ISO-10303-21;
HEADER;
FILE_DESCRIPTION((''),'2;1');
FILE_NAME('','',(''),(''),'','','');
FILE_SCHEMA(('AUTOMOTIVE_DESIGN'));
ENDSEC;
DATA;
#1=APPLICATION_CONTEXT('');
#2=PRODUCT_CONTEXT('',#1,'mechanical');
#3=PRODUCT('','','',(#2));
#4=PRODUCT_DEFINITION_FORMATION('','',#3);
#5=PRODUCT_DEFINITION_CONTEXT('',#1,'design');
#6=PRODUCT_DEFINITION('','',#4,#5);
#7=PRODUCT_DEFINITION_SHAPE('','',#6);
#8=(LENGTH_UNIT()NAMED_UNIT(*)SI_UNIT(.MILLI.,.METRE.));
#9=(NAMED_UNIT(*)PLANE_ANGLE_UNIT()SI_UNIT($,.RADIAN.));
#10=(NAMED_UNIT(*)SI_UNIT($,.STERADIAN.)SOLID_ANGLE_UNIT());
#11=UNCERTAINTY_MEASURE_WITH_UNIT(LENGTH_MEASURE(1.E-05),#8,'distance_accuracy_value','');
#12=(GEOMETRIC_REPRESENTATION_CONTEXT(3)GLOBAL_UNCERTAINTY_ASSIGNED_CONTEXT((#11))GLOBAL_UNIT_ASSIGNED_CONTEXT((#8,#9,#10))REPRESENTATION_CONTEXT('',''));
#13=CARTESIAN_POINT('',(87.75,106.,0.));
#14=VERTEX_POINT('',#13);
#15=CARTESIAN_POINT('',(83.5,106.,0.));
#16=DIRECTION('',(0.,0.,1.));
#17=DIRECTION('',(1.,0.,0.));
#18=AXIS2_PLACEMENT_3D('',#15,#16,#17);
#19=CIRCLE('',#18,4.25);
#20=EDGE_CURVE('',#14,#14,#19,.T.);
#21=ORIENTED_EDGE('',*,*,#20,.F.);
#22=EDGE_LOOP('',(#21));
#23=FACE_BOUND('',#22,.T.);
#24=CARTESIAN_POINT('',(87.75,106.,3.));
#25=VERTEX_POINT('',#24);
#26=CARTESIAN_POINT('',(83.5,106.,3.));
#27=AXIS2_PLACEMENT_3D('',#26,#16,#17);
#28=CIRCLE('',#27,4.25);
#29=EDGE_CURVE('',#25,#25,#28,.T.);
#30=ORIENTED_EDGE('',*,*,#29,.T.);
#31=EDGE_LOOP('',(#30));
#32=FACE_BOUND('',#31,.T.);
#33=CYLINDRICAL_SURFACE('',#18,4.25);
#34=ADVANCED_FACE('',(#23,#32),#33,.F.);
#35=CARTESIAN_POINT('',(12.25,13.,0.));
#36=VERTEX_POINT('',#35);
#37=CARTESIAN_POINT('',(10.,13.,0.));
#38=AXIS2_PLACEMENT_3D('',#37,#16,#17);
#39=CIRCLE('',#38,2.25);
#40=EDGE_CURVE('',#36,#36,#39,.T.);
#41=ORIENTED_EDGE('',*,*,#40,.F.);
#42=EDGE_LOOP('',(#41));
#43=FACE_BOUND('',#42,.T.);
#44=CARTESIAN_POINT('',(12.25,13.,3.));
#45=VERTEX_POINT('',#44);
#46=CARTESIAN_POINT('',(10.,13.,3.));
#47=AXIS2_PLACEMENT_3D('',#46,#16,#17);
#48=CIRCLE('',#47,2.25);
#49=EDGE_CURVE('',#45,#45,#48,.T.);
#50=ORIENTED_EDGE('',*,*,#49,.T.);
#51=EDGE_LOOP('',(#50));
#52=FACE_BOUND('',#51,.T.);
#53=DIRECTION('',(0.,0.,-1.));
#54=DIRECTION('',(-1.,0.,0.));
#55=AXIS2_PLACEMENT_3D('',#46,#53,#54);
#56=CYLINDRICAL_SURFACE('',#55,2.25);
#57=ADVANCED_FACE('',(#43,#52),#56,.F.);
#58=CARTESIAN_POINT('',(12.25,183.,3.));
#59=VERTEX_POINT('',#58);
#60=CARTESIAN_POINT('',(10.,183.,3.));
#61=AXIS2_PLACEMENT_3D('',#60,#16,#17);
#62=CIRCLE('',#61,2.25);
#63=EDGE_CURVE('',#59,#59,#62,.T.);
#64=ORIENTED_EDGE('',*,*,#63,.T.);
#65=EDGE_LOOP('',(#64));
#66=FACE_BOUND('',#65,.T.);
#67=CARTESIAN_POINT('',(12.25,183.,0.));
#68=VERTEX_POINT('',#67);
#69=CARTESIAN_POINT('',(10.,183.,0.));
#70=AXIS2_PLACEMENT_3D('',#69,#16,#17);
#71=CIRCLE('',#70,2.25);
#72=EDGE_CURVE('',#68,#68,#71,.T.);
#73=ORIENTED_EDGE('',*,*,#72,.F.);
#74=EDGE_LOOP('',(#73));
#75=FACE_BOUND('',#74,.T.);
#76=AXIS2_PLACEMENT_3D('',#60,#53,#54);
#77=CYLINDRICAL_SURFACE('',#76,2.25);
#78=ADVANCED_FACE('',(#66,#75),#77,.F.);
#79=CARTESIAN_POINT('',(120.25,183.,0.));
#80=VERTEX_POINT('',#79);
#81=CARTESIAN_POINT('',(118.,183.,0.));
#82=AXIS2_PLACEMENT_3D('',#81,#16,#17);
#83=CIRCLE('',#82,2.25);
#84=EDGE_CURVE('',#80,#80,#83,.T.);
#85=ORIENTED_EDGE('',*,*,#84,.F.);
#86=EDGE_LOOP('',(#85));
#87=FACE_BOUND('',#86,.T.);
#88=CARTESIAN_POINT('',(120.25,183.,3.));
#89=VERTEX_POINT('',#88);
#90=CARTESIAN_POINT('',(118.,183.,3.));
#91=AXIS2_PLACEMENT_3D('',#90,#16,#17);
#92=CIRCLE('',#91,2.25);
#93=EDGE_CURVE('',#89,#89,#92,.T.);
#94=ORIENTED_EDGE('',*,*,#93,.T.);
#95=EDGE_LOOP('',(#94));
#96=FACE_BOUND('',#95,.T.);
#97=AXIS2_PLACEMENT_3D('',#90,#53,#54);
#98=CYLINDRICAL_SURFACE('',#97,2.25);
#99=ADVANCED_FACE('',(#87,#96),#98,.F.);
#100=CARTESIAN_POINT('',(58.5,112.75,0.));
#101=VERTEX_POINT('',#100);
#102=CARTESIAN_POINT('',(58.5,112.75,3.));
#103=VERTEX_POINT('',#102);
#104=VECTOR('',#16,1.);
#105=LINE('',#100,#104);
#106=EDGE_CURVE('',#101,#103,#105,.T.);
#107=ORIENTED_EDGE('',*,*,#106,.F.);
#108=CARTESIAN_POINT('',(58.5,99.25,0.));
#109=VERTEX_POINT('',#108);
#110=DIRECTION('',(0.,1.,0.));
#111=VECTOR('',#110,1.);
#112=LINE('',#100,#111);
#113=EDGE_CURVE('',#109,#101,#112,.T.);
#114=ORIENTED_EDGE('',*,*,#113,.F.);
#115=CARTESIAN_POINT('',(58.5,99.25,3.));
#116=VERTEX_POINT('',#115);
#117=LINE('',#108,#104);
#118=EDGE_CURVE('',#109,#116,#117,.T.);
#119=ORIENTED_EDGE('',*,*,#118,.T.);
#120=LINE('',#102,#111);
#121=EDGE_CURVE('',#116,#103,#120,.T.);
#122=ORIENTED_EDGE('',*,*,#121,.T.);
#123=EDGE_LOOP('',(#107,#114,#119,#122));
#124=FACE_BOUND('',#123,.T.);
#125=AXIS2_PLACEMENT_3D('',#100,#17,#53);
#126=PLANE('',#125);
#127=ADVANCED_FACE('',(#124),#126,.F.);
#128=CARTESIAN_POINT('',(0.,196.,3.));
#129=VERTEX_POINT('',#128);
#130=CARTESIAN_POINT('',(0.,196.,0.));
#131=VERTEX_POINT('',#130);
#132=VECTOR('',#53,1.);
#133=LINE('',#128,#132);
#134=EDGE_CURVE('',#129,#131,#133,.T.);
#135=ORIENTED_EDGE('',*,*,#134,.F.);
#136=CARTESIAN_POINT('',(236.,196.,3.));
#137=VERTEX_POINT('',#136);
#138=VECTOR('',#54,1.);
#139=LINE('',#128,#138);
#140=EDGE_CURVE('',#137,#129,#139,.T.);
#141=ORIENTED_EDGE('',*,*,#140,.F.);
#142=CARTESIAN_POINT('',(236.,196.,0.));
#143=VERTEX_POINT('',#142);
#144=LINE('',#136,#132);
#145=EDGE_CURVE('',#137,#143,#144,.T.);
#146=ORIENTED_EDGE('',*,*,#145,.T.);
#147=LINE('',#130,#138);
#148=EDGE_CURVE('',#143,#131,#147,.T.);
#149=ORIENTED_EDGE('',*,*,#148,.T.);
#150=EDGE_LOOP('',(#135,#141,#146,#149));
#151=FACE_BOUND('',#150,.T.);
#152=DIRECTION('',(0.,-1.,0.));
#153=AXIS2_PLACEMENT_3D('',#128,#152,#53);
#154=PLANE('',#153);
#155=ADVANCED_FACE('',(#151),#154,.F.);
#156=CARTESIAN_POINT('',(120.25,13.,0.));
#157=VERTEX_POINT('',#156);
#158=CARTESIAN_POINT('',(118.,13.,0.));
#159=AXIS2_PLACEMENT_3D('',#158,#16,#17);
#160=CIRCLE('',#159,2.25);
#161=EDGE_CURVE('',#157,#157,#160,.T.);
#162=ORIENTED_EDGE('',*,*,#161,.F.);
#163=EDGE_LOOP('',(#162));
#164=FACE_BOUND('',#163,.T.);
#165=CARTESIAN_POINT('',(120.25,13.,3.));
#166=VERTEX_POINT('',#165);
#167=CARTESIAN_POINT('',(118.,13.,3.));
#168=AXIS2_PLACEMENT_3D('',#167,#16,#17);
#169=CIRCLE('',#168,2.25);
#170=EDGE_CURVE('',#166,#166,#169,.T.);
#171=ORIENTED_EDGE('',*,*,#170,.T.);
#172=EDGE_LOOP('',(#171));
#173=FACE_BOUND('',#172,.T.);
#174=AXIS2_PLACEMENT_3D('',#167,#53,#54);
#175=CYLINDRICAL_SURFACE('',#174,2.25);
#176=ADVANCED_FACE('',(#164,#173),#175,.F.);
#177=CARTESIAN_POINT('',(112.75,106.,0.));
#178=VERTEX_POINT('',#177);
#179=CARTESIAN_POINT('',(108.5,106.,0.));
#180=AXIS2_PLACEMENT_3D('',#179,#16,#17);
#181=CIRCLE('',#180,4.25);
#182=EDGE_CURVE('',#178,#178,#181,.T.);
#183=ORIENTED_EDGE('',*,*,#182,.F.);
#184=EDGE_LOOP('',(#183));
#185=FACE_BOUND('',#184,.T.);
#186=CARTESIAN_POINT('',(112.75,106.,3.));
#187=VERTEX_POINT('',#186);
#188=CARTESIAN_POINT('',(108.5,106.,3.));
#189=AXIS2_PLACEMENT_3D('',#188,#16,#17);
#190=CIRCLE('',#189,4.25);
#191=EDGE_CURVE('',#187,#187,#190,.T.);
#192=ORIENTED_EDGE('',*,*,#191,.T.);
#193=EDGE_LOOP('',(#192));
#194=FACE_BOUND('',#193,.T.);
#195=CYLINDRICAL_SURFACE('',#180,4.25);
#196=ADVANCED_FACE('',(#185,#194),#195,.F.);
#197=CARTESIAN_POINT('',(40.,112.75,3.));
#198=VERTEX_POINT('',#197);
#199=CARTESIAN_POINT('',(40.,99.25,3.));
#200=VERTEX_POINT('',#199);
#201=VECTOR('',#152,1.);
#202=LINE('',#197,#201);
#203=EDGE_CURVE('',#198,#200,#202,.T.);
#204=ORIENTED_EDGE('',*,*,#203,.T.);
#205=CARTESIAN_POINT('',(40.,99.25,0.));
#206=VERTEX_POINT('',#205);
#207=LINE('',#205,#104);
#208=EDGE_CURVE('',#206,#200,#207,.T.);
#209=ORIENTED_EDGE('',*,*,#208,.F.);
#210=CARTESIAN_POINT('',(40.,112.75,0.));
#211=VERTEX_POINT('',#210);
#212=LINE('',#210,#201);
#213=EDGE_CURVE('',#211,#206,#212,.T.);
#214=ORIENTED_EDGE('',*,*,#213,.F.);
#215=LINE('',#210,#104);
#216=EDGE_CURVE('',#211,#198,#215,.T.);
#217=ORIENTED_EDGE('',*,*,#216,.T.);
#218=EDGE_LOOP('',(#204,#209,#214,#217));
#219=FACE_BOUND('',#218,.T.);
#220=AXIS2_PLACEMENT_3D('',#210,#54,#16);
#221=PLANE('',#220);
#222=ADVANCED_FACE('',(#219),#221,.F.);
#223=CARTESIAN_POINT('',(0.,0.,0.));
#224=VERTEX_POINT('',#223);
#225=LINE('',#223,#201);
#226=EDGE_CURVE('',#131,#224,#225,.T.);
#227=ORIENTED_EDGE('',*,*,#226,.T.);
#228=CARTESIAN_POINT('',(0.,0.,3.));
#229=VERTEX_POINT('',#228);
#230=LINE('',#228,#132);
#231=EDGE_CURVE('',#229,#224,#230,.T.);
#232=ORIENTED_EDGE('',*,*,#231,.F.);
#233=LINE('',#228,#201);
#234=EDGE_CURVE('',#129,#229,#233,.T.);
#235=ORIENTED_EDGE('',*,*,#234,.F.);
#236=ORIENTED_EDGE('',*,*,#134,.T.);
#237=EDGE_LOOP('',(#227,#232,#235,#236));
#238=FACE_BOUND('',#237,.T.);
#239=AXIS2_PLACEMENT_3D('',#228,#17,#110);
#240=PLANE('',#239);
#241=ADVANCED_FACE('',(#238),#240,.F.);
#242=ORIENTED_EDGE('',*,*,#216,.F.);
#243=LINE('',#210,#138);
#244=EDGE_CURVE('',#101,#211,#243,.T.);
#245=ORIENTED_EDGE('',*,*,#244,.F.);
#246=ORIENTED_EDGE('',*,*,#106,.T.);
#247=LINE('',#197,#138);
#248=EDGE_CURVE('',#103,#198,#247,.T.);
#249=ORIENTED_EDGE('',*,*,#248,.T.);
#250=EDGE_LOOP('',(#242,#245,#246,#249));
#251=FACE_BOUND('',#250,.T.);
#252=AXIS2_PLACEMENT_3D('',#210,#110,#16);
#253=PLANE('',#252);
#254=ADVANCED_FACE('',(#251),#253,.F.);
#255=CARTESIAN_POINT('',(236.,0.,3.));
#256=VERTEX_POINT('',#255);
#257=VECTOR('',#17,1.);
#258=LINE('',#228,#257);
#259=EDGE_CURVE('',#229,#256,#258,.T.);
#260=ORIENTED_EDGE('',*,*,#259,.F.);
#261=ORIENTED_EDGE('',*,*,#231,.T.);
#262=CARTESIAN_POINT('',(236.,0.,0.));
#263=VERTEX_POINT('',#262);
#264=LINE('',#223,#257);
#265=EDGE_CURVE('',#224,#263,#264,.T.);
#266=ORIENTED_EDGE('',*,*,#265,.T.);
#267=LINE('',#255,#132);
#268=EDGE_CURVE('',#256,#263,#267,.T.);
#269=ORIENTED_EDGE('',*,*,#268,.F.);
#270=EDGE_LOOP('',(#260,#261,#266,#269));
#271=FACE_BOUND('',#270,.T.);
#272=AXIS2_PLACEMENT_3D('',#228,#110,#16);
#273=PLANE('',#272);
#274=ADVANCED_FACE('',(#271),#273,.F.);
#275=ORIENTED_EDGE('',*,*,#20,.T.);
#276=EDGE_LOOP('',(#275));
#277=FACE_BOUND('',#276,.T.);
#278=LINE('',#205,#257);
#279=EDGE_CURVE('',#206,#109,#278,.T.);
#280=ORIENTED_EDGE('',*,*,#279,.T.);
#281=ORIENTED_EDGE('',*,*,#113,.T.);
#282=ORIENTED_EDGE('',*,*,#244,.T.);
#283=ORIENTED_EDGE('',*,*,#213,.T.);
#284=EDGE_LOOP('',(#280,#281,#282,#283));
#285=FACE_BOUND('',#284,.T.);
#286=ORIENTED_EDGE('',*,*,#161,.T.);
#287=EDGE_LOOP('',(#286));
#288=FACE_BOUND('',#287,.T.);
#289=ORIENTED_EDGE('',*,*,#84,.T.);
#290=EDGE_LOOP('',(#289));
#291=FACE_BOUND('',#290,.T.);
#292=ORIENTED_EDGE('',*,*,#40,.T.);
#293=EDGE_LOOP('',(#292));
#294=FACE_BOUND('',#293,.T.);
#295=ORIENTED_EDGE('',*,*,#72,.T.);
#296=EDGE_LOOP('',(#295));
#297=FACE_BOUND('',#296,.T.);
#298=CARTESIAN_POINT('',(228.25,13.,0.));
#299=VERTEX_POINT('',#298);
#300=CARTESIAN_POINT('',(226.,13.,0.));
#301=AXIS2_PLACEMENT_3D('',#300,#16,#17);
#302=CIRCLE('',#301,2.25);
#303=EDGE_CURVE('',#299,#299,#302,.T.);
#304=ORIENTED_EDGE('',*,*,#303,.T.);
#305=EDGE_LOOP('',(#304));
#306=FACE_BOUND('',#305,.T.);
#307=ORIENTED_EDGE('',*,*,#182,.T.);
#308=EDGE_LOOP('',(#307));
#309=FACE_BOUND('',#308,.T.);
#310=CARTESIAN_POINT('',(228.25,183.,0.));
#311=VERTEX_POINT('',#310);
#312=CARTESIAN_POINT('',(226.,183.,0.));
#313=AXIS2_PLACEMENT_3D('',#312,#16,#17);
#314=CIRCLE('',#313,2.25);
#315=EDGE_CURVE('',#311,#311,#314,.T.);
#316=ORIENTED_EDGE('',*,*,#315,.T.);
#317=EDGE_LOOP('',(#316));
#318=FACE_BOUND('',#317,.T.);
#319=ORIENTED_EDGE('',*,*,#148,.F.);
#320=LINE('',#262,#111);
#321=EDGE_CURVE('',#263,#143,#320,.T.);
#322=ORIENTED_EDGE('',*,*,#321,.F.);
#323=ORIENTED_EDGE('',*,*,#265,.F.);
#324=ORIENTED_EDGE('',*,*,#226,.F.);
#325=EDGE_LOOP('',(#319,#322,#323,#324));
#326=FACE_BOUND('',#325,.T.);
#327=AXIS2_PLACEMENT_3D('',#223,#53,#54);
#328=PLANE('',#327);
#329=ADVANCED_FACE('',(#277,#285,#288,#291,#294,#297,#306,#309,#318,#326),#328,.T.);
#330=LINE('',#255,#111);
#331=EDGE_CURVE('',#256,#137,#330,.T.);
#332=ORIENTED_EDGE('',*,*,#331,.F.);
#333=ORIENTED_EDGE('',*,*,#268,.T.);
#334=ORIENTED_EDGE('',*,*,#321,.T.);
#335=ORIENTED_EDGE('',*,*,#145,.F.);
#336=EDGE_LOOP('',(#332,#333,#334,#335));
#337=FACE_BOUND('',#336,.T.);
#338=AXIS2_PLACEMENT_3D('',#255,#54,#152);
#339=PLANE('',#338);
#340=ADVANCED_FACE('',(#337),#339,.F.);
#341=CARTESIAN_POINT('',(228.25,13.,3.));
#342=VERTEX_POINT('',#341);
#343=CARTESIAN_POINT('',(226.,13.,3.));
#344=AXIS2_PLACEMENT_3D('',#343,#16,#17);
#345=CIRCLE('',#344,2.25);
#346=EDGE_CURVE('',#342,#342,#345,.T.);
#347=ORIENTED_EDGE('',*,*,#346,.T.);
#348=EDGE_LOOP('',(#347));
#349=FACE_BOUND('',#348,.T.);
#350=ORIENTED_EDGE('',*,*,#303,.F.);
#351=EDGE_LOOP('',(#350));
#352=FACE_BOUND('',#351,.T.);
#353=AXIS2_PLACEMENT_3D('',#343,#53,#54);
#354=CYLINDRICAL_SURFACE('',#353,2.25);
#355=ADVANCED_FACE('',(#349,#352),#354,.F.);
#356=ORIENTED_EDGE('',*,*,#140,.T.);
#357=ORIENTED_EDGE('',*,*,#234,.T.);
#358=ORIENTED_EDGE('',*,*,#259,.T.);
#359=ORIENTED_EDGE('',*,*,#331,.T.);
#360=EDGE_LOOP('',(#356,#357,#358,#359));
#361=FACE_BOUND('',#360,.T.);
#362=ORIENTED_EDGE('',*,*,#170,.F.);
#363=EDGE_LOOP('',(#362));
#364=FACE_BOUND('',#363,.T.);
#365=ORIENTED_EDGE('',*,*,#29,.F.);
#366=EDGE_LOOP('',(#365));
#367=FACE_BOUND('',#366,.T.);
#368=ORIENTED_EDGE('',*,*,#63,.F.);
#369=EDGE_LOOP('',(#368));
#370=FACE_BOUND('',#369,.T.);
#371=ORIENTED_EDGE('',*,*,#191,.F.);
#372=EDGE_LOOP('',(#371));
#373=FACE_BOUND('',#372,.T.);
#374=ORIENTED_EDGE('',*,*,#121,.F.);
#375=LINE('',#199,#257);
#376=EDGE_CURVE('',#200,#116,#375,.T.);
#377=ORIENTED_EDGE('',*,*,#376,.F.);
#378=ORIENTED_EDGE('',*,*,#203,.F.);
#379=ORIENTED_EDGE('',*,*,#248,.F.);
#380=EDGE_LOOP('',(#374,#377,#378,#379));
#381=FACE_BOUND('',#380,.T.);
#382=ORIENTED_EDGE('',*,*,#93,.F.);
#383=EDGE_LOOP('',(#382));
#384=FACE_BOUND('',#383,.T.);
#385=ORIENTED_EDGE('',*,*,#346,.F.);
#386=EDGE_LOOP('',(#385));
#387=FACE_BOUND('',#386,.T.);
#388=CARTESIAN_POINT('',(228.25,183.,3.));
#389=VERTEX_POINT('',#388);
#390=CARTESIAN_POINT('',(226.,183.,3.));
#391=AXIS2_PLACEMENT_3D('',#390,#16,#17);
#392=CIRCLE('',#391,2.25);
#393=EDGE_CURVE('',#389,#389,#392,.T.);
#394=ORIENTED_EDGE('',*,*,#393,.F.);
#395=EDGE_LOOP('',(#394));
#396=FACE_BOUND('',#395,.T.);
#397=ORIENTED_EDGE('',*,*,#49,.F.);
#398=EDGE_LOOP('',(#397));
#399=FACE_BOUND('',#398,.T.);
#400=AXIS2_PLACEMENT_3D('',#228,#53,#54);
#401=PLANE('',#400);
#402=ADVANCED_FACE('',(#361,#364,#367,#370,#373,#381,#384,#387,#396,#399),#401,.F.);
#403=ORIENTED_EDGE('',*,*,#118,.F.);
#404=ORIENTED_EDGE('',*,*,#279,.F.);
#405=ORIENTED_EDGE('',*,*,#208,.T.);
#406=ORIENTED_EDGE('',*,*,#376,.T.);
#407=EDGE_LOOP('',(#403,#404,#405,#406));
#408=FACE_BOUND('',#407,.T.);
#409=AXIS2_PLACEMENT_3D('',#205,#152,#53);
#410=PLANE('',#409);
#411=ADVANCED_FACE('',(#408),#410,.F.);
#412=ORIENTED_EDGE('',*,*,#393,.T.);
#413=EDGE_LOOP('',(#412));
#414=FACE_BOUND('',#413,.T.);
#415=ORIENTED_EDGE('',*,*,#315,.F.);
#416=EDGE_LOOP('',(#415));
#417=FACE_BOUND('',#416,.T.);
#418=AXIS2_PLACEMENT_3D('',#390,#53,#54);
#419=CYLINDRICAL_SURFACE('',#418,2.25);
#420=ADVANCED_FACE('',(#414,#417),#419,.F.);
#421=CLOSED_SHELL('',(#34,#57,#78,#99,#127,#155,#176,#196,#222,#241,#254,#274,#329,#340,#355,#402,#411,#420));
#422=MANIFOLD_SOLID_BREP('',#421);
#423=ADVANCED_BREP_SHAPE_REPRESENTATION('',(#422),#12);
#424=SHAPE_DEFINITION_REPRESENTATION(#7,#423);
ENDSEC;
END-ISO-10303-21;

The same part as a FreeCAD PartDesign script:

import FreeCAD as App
import Part
import Sketcher
from FreeCAD import Vector

doc = App.newDocument("Part")
body = doc.addObject("PartDesign::Body", "Body")

# Sketch on XY plane
sketch1 = body.newObject("Sketcher::SketchObject", "Sketch")
sketch1.AttachmentSupport = (doc.getObject("XY_Plane"), [""])
sketch1.MapMode = "FlatFace"
sketch1.addGeometry(Part.LineSegment(Vector(0, 196, 0), Vector(0, 0, 0)), False)
sketch1.addGeometry(Part.LineSegment(Vector(0, 0, 0), Vector(236, 0, 0)), False)
sketch1.addGeometry(Part.LineSegment(Vector(236, 0, 0), Vector(236, 196, 0)), False)
sketch1.addGeometry(Part.LineSegment(Vector(236, 196, 0), Vector(0, 196, 0)), False)
sketch1.addGeometry(Part.Circle(Vector(10, 13, 0), Vector(0, 0, 1), 2.2), False)
sketch1.addGeometry(Part.Circle(Vector(118, 13, 0), Vector(0, 0, 1), 2.2), False)
sketch1.addGeometry(Part.Circle(Vector(226, 13, 0), Vector(0, 0, 1), 2.2), False)
sketch1.addGeometry(Part.Circle(Vector(10, 183, 0), Vector(0, 0, 1), 2.2), False)
sketch1.addGeometry(Part.Circle(Vector(118, 183, 0), Vector(0, 0, 1), 2.2), False)
sketch1.addGeometry(Part.Circle(Vector(226, 183, 0), Vector(0, 0, 1), 2.2), False)
sketch1.addConstraint(Sketcher.Constraint("Coincident", 0, 2, 1, 1))
sketch1.addConstraint(Sketcher.Constraint("Coincident", 1, 2, 2, 1))
sketch1.addConstraint(Sketcher.Constraint("Coincident", 2, 2, 3, 1))
sketch1.addConstraint(Sketcher.Constraint("Coincident", 3, 2, 0, 1))
sketch1.addConstraint(Sketcher.Constraint("Vertical", 0))
sketch1.addConstraint(Sketcher.Constraint("Horizontal", 1))
sketch1.addConstraint(Sketcher.Constraint("Vertical", 2))
sketch1.addConstraint(Sketcher.Constraint("Horizontal", 3))
sketch1.addConstraint(Sketcher.Constraint("Coincident", 0, 2, -1, 1))
sketch1.addConstraint(Sketcher.Constraint("Equal", 4, 5))
sketch1.addConstraint(Sketcher.Constraint("Equal", 5, 6))
sketch1.addConstraint(Sketcher.Constraint("Equal", 6, 7))
sketch1.addConstraint(Sketcher.Constraint("Equal", 7, 8))
sketch1.addConstraint(Sketcher.Constraint("Equal", 8, 9))
sketch1.addConstraint(Sketcher.Constraint("Horizontal", 4, 3, 5, 3))
sketch1.addConstraint(Sketcher.Constraint("Horizontal", 5, 3, 6, 3))
sketch1.addConstraint(Sketcher.Constraint("Horizontal", 7, 3, 8, 3))
sketch1.addConstraint(Sketcher.Constraint("Horizontal", 8, 3, 9, 3))
sketch1.addConstraint(Sketcher.Constraint("Vertical", 4, 3, 7, 3))
sketch1.addConstraint(Sketcher.Constraint("Vertical", 5, 3, 8, 3))
sketch1.addConstraint(Sketcher.Constraint("Vertical", 6, 3, 9, 3))
sketch1.addConstraint(Sketcher.Constraint("Diameter", 4, 4.5))
sketch1.addConstraint(Sketcher.Constraint("DistanceX", 1, 1, 1, 2, 236.0))
sketch1.addConstraint(Sketcher.Constraint("DistanceY", 0, 2, 0, 1, 196.0))
sketch1.addConstraint(Sketcher.Constraint("DistanceX", -1, 1, 4, 3, 10.0))
sketch1.addConstraint(Sketcher.Constraint("DistanceY", -1, 1, 4, 3, 13.0))
sketch1.addConstraint(Sketcher.Constraint("DistanceX", -1, 1, 5, 3, 118.0))
sketch1.addConstraint(Sketcher.Constraint("DistanceX", -1, 1, 6, 3, 226.0))
sketch1.addConstraint(Sketcher.Constraint("DistanceY", -1, 1, 7, 3, 183.0))
pad1 = body.newObject("PartDesign::Pad", "Pad")
pad1.Profile = sketch1
pad1.Length = 3

# Sketch on XY plane
sketch2 = body.newObject("Sketcher::SketchObject", "Sketch001")
sketch2.AttachmentSupport = (doc.getObject("XY_Plane"), [""])
sketch2.MapMode = "FlatFace"
sketch2.AttachmentOffset = App.Placement(Vector(0, 0, 3), App.Rotation())
sketch2.addGeometry(Part.Circle(Vector(108.5, 106, 0), Vector(0, 0, 1), 4.2), False)
sketch2.addGeometry(Part.Circle(Vector(83.5, 106, 0), Vector(0, 0, 1), 4.2), False)
sketch2.addGeometry(Part.LineSegment(Vector(40, 112.8, 0), Vector(40, 99.2, 0)), False)
sketch2.addGeometry(Part.LineSegment(Vector(40, 99.2, 0), Vector(58.5, 99.2, 0)), False)
sketch2.addGeometry(Part.LineSegment(Vector(58.5, 99.2, 0), Vector(58.5, 112.8, 0)), False)
sketch2.addGeometry(Part.LineSegment(Vector(58.5, 112.8, 0), Vector(40, 112.8, 0)), False)
sketch2.addConstraint(Sketcher.Constraint("Coincident", 2, 2, 3, 1))
sketch2.addConstraint(Sketcher.Constraint("Coincident", 3, 2, 4, 1))
sketch2.addConstraint(Sketcher.Constraint("Coincident", 4, 2, 5, 1))
sketch2.addConstraint(Sketcher.Constraint("Coincident", 5, 2, 2, 1))
sketch2.addConstraint(Sketcher.Constraint("Vertical", 2))
sketch2.addConstraint(Sketcher.Constraint("Horizontal", 3))
sketch2.addConstraint(Sketcher.Constraint("Vertical", 4))
sketch2.addConstraint(Sketcher.Constraint("Horizontal", 5))
sketch2.addConstraint(Sketcher.Constraint("Equal", 0, 1))
sketch2.addConstraint(Sketcher.Constraint("Horizontal", 0, 3, 1, 3))
sketch2.addConstraint(Sketcher.Constraint("Diameter", 0, 8.5))
sketch2.addConstraint(Sketcher.Constraint("DistanceX", 3, 1, 3, 2, 18.5))
sketch2.addConstraint(Sketcher.Constraint("DistanceY", 2, 2, 2, 1, 13.5))
sketch2.addConstraint(Sketcher.Constraint("DistanceY", -1, 1, 0, 3, 106.0))
sketch2.addConstraint(Sketcher.Constraint("DistanceX", -1, 1, 2, 2, 40.0))
sketch2.addConstraint(Sketcher.Constraint("DistanceX", 1, 3, 0, 3, 25.0))
sketch2.addConstraint(Sketcher.Constraint("DistanceX", 3, 2, 1, 3, 25.0))
sketch2.addConstraint(Sketcher.Constraint("DistanceY", -1, 1, 2, 2, 99.25))
pocket1 = body.newObject("PartDesign::Pocket", "Pocket")
pocket1.Profile = sketch2
pocket1.Type = "ThroughAll"

doc.recompute()
